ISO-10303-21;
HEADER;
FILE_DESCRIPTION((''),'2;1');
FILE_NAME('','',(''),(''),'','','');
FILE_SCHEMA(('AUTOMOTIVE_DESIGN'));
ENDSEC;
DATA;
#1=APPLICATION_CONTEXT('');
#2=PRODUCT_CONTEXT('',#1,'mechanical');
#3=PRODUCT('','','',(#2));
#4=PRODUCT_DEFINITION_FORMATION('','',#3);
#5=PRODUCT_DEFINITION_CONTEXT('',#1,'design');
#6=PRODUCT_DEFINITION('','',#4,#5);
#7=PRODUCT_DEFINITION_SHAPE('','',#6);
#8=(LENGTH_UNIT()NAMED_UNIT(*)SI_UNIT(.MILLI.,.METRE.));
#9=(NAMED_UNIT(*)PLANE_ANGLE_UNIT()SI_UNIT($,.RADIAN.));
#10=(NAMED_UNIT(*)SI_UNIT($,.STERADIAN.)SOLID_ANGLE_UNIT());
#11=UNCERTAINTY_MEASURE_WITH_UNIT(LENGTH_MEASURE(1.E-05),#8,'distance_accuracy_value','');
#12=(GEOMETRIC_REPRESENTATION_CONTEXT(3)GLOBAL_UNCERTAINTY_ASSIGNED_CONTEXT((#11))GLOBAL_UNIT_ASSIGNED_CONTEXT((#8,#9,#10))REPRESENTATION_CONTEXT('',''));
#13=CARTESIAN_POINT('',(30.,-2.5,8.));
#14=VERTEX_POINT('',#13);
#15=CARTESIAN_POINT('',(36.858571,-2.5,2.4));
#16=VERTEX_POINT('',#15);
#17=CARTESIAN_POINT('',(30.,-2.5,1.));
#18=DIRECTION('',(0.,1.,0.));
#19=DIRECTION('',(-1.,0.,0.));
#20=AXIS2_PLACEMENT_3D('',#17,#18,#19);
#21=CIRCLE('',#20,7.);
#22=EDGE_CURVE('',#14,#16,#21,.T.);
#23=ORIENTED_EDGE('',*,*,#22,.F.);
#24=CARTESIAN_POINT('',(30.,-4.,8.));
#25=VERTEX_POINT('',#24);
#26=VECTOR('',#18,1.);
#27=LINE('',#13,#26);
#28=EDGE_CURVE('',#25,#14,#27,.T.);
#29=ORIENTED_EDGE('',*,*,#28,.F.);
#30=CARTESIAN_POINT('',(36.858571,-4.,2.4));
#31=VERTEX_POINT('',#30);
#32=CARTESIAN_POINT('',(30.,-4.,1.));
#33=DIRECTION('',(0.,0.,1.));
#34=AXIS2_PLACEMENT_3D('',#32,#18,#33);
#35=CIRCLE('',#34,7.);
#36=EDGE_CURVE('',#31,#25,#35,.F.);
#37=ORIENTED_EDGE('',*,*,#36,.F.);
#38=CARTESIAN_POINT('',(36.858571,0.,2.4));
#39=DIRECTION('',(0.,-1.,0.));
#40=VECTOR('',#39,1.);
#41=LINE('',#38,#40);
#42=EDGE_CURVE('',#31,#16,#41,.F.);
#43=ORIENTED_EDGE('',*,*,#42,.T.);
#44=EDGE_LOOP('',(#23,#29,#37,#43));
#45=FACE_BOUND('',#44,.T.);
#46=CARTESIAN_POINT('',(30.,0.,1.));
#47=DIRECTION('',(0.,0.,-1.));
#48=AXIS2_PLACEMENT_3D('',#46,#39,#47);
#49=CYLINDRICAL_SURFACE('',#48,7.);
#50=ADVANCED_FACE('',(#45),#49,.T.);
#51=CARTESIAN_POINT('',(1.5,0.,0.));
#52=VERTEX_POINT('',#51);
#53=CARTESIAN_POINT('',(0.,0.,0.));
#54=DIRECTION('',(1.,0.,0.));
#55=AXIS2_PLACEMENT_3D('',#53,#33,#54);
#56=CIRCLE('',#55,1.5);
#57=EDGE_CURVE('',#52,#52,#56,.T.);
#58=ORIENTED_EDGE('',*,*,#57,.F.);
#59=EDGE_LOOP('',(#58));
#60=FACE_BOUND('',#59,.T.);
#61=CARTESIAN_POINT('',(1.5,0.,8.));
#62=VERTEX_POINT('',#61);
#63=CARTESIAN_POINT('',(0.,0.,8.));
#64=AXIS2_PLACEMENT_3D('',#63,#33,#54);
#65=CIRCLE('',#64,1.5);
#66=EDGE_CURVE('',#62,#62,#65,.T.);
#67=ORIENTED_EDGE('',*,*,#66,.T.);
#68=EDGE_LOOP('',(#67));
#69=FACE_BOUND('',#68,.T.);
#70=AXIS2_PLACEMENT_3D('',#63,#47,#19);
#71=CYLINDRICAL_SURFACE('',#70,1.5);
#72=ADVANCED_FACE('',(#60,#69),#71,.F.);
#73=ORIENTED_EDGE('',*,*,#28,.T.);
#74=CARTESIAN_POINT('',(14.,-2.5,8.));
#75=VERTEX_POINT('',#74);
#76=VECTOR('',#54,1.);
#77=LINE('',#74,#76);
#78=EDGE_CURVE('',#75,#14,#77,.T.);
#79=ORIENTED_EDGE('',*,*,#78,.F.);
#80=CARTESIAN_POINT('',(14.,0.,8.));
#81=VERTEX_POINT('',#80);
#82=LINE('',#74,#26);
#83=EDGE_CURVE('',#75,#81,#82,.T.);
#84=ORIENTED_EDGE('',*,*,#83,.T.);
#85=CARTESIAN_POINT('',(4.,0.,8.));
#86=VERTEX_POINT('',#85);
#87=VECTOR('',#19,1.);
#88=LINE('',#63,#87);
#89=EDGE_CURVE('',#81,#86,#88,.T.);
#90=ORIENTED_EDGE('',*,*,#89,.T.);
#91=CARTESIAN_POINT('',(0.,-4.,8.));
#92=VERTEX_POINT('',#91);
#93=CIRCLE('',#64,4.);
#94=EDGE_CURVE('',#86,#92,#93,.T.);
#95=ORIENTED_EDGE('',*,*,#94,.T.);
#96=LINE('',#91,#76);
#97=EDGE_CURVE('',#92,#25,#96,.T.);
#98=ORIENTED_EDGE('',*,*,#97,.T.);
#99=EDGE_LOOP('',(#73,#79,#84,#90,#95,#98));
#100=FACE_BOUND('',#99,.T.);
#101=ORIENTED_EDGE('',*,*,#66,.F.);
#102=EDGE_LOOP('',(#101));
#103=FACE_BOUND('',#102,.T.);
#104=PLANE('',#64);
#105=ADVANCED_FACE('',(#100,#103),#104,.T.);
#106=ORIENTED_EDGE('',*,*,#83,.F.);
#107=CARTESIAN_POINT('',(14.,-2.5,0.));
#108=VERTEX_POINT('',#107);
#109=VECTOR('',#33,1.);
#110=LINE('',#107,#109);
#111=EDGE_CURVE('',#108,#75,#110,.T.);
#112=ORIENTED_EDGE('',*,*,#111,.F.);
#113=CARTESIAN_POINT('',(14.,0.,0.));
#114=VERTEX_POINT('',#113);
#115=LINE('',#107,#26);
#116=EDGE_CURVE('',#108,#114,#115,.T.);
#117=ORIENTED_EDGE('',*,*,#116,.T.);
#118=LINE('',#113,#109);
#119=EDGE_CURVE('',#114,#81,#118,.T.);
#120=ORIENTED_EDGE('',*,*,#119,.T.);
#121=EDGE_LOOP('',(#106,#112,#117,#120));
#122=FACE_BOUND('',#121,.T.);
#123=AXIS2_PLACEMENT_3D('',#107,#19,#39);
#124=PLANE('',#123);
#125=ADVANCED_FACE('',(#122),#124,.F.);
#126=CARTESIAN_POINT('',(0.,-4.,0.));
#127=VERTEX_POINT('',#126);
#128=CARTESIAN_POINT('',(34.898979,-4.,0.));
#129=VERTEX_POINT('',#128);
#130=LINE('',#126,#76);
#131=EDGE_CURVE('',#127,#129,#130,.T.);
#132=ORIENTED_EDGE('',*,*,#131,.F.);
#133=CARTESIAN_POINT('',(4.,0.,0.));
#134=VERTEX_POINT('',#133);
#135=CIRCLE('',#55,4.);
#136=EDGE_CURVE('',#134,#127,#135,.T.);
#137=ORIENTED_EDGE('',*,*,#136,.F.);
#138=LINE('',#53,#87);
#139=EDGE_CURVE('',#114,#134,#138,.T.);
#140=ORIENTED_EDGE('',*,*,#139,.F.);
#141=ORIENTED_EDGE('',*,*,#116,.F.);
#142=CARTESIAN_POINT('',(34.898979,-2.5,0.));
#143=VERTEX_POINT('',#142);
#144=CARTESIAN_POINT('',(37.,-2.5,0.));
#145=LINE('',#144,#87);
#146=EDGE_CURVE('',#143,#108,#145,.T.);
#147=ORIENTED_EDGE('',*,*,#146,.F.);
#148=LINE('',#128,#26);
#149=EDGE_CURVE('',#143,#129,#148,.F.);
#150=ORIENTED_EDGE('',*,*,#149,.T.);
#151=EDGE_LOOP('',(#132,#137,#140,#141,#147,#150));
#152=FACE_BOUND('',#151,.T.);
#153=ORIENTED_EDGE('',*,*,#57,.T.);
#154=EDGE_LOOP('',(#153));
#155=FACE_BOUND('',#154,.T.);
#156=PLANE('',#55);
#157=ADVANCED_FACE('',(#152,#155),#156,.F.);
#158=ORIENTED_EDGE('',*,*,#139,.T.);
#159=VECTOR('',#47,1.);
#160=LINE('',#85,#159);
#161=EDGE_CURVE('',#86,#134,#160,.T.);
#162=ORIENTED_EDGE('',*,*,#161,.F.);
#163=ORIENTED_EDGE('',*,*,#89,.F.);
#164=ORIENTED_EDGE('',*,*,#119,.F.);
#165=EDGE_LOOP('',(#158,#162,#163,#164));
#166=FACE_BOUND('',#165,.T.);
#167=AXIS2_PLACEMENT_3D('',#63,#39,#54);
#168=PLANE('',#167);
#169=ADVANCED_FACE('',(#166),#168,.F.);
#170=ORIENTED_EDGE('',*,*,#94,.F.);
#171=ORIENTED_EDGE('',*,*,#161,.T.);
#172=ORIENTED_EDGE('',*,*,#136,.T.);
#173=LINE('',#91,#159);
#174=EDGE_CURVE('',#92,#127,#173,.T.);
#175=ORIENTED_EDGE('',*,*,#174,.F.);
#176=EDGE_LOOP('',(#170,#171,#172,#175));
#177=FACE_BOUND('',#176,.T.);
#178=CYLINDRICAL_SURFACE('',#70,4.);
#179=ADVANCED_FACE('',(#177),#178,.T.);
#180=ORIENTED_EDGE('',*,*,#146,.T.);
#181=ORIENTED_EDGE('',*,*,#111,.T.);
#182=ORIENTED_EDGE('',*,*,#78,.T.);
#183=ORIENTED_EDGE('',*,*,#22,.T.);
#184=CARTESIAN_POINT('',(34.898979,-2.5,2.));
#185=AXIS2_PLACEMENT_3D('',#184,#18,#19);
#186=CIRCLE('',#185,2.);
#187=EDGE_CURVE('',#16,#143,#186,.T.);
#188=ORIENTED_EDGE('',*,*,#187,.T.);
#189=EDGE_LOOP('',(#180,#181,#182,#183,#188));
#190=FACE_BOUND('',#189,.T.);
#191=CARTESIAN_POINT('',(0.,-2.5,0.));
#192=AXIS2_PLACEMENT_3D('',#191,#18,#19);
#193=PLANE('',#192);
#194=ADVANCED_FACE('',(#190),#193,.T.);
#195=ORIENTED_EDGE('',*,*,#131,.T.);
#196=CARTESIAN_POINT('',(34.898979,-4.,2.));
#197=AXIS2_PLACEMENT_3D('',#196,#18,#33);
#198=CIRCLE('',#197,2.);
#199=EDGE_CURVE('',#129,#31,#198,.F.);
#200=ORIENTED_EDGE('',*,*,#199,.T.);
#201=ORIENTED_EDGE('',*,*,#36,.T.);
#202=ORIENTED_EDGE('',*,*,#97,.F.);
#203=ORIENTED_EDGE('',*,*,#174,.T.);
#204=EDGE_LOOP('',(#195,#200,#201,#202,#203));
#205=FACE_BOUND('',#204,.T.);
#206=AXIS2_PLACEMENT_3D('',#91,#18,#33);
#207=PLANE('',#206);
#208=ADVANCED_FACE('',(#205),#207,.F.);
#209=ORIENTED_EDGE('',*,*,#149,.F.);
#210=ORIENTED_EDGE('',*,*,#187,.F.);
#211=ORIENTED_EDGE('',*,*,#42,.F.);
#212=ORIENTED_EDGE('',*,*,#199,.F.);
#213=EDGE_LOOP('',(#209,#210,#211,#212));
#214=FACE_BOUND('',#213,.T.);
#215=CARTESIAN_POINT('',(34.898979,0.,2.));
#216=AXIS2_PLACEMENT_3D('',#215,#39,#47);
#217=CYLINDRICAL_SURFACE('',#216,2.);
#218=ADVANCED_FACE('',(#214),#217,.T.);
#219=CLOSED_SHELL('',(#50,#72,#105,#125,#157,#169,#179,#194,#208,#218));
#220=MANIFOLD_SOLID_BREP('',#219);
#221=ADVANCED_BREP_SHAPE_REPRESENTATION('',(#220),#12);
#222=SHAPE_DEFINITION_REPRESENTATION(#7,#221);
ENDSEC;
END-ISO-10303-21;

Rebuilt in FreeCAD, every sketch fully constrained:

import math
import FreeCAD as App
import Part
import Sketcher
from FreeCAD import Vector
Q = App.Units.Quantity


def edges_at(feature, points):
    """Names of the edges that pass closest to the given points."""
    edges = feature.Shape.Edges
    near = lambda p: min(range(len(edges)), key=lambda i: edges[i].distToShape(Part.Vertex(*p))[0])
    return sorted({f"Edge{near(p) + 1}" for p in points})


def add_polygon(sketch, points):
    """Adds a closed chain of lines whose ends are joined by coincident constraints."""
    first, n = sketch.GeometryCount, len(points)
    for a, b in zip(points, points[1:] + points[:1]):
        sketch.addGeometry(Part.LineSegment(App.Vector(*a, 0), App.Vector(*b, 0)), False)
    for i in range(n):
        sketch.addConstraint(Sketcher.Constraint("Coincident", first + i, 2, first + (i + 1) % n, 1))

doc = App.newDocument("Part")
body = doc.addObject("PartDesign::Body", "Body")

# Sketch on XY plane
sketch1 = body.newObject("Sketcher::SketchObject", "Sketch")
sketch1.AttachmentSupport = (doc.getObject("XY_Plane"), [""])
sketch1.MapMode = "FlatFace"
sketch1.addGeometry([
    Part.ArcOfCircle(Part.Circle(Vector(0, 0, 0), Vector(0, 0, 1), 4), math.radians(0), math.radians(270)),  # 0
    Part.LineSegment(Vector(0, -4, 0), Vector(37, -4, 0)),  # 1
    Part.LineSegment(Vector(37, -4, 0), Vector(37, 0, 0)),  # 2
    Part.LineSegment(Vector(37, 0, 0), Vector(4, 0, 0)),  # 3
    Part.Circle(Vector(0, 0, 0), Vector(0, 0, 1), 1.5),  # 4
], False)
sketch1.addConstraint([
    Sketcher.Constraint("Tangent", 0, 2, 1, 1),
    Sketcher.Constraint("Coincident", 1, 2, 2, 1),
    Sketcher.Constraint("Coincident", 2, 2, 3, 1),
    Sketcher.Constraint("Coincident", 3, 2, 0, 1),
    Sketcher.Constraint("Horizontal", 1),
    Sketcher.Constraint("Vertical", 2),
    Sketcher.Constraint("Horizontal", 3),
    Sketcher.Constraint("Coincident", 0, 3, -1, 1),
    Sketcher.Constraint("Coincident", 4, 3, -1, 1),
    Sketcher.Constraint("PointOnObject", 2, 2, -1),
    Sketcher.Constraint("Diameter", 4, Q("3 mm")),
    Sketcher.Constraint("Radius", 0, Q("4 mm")),
    Sketcher.Constraint("DistanceX", 1, 1, 1, 2, Q("37 mm")),
])
pad1 = body.newObject("PartDesign::Pad", "Pad")
pad1.Profile = sketch1
pad1.Length = 8

# Sketch on XZ plane
sketch2 = body.newObject("Sketcher::SketchObject", "Sketch001")
sketch2.AttachmentSupport = (doc.getObject("XZ_Plane"), [""])
sketch2.MapMode = "FlatFace"
add_polygon(sketch2, [(14, 0), (14, 8), (37, 8), (37, 0)])  # lines 0-3
sketch2.addConstraint([
    Sketcher.Constraint("Vertical", 0),
    Sketcher.Constraint("Horizontal", 1),
    Sketcher.Constraint("Vertical", 2),
    Sketcher.Constraint("Horizontal", 3),
    Sketcher.Constraint("PointOnObject", 2, 2, -1),
    Sketcher.Constraint("DistanceX", 1, 1, 1, 2, Q("23 mm")),
    Sketcher.Constraint("DistanceY", 0, 1, 0, 2, Q("8 mm")),
    Sketcher.Constraint("DistanceX", -1, 1, 0, 2, Q("14 mm")),
])
pocket1 = body.newObject("PartDesign::Pocket", "Pocket")
pocket1.Profile = sketch2
pocket1.Length = 2.5
pocket1.Reversed = True
doc.recompute()

fillet = body.newObject("PartDesign::Fillet", "Fillet")
fillet.Base = (pocket1, edges_at(pocket1, [(37, -3.25, 8)]))
fillet.Radius = 7
doc.recompute()

fillet2 = body.newObject("PartDesign::Fillet", "Fillet001")
fillet2.Base = (fillet, edges_at(fillet, [(37, -3.25, 0)]))
fillet2.Radius = 2

doc.recompute()
